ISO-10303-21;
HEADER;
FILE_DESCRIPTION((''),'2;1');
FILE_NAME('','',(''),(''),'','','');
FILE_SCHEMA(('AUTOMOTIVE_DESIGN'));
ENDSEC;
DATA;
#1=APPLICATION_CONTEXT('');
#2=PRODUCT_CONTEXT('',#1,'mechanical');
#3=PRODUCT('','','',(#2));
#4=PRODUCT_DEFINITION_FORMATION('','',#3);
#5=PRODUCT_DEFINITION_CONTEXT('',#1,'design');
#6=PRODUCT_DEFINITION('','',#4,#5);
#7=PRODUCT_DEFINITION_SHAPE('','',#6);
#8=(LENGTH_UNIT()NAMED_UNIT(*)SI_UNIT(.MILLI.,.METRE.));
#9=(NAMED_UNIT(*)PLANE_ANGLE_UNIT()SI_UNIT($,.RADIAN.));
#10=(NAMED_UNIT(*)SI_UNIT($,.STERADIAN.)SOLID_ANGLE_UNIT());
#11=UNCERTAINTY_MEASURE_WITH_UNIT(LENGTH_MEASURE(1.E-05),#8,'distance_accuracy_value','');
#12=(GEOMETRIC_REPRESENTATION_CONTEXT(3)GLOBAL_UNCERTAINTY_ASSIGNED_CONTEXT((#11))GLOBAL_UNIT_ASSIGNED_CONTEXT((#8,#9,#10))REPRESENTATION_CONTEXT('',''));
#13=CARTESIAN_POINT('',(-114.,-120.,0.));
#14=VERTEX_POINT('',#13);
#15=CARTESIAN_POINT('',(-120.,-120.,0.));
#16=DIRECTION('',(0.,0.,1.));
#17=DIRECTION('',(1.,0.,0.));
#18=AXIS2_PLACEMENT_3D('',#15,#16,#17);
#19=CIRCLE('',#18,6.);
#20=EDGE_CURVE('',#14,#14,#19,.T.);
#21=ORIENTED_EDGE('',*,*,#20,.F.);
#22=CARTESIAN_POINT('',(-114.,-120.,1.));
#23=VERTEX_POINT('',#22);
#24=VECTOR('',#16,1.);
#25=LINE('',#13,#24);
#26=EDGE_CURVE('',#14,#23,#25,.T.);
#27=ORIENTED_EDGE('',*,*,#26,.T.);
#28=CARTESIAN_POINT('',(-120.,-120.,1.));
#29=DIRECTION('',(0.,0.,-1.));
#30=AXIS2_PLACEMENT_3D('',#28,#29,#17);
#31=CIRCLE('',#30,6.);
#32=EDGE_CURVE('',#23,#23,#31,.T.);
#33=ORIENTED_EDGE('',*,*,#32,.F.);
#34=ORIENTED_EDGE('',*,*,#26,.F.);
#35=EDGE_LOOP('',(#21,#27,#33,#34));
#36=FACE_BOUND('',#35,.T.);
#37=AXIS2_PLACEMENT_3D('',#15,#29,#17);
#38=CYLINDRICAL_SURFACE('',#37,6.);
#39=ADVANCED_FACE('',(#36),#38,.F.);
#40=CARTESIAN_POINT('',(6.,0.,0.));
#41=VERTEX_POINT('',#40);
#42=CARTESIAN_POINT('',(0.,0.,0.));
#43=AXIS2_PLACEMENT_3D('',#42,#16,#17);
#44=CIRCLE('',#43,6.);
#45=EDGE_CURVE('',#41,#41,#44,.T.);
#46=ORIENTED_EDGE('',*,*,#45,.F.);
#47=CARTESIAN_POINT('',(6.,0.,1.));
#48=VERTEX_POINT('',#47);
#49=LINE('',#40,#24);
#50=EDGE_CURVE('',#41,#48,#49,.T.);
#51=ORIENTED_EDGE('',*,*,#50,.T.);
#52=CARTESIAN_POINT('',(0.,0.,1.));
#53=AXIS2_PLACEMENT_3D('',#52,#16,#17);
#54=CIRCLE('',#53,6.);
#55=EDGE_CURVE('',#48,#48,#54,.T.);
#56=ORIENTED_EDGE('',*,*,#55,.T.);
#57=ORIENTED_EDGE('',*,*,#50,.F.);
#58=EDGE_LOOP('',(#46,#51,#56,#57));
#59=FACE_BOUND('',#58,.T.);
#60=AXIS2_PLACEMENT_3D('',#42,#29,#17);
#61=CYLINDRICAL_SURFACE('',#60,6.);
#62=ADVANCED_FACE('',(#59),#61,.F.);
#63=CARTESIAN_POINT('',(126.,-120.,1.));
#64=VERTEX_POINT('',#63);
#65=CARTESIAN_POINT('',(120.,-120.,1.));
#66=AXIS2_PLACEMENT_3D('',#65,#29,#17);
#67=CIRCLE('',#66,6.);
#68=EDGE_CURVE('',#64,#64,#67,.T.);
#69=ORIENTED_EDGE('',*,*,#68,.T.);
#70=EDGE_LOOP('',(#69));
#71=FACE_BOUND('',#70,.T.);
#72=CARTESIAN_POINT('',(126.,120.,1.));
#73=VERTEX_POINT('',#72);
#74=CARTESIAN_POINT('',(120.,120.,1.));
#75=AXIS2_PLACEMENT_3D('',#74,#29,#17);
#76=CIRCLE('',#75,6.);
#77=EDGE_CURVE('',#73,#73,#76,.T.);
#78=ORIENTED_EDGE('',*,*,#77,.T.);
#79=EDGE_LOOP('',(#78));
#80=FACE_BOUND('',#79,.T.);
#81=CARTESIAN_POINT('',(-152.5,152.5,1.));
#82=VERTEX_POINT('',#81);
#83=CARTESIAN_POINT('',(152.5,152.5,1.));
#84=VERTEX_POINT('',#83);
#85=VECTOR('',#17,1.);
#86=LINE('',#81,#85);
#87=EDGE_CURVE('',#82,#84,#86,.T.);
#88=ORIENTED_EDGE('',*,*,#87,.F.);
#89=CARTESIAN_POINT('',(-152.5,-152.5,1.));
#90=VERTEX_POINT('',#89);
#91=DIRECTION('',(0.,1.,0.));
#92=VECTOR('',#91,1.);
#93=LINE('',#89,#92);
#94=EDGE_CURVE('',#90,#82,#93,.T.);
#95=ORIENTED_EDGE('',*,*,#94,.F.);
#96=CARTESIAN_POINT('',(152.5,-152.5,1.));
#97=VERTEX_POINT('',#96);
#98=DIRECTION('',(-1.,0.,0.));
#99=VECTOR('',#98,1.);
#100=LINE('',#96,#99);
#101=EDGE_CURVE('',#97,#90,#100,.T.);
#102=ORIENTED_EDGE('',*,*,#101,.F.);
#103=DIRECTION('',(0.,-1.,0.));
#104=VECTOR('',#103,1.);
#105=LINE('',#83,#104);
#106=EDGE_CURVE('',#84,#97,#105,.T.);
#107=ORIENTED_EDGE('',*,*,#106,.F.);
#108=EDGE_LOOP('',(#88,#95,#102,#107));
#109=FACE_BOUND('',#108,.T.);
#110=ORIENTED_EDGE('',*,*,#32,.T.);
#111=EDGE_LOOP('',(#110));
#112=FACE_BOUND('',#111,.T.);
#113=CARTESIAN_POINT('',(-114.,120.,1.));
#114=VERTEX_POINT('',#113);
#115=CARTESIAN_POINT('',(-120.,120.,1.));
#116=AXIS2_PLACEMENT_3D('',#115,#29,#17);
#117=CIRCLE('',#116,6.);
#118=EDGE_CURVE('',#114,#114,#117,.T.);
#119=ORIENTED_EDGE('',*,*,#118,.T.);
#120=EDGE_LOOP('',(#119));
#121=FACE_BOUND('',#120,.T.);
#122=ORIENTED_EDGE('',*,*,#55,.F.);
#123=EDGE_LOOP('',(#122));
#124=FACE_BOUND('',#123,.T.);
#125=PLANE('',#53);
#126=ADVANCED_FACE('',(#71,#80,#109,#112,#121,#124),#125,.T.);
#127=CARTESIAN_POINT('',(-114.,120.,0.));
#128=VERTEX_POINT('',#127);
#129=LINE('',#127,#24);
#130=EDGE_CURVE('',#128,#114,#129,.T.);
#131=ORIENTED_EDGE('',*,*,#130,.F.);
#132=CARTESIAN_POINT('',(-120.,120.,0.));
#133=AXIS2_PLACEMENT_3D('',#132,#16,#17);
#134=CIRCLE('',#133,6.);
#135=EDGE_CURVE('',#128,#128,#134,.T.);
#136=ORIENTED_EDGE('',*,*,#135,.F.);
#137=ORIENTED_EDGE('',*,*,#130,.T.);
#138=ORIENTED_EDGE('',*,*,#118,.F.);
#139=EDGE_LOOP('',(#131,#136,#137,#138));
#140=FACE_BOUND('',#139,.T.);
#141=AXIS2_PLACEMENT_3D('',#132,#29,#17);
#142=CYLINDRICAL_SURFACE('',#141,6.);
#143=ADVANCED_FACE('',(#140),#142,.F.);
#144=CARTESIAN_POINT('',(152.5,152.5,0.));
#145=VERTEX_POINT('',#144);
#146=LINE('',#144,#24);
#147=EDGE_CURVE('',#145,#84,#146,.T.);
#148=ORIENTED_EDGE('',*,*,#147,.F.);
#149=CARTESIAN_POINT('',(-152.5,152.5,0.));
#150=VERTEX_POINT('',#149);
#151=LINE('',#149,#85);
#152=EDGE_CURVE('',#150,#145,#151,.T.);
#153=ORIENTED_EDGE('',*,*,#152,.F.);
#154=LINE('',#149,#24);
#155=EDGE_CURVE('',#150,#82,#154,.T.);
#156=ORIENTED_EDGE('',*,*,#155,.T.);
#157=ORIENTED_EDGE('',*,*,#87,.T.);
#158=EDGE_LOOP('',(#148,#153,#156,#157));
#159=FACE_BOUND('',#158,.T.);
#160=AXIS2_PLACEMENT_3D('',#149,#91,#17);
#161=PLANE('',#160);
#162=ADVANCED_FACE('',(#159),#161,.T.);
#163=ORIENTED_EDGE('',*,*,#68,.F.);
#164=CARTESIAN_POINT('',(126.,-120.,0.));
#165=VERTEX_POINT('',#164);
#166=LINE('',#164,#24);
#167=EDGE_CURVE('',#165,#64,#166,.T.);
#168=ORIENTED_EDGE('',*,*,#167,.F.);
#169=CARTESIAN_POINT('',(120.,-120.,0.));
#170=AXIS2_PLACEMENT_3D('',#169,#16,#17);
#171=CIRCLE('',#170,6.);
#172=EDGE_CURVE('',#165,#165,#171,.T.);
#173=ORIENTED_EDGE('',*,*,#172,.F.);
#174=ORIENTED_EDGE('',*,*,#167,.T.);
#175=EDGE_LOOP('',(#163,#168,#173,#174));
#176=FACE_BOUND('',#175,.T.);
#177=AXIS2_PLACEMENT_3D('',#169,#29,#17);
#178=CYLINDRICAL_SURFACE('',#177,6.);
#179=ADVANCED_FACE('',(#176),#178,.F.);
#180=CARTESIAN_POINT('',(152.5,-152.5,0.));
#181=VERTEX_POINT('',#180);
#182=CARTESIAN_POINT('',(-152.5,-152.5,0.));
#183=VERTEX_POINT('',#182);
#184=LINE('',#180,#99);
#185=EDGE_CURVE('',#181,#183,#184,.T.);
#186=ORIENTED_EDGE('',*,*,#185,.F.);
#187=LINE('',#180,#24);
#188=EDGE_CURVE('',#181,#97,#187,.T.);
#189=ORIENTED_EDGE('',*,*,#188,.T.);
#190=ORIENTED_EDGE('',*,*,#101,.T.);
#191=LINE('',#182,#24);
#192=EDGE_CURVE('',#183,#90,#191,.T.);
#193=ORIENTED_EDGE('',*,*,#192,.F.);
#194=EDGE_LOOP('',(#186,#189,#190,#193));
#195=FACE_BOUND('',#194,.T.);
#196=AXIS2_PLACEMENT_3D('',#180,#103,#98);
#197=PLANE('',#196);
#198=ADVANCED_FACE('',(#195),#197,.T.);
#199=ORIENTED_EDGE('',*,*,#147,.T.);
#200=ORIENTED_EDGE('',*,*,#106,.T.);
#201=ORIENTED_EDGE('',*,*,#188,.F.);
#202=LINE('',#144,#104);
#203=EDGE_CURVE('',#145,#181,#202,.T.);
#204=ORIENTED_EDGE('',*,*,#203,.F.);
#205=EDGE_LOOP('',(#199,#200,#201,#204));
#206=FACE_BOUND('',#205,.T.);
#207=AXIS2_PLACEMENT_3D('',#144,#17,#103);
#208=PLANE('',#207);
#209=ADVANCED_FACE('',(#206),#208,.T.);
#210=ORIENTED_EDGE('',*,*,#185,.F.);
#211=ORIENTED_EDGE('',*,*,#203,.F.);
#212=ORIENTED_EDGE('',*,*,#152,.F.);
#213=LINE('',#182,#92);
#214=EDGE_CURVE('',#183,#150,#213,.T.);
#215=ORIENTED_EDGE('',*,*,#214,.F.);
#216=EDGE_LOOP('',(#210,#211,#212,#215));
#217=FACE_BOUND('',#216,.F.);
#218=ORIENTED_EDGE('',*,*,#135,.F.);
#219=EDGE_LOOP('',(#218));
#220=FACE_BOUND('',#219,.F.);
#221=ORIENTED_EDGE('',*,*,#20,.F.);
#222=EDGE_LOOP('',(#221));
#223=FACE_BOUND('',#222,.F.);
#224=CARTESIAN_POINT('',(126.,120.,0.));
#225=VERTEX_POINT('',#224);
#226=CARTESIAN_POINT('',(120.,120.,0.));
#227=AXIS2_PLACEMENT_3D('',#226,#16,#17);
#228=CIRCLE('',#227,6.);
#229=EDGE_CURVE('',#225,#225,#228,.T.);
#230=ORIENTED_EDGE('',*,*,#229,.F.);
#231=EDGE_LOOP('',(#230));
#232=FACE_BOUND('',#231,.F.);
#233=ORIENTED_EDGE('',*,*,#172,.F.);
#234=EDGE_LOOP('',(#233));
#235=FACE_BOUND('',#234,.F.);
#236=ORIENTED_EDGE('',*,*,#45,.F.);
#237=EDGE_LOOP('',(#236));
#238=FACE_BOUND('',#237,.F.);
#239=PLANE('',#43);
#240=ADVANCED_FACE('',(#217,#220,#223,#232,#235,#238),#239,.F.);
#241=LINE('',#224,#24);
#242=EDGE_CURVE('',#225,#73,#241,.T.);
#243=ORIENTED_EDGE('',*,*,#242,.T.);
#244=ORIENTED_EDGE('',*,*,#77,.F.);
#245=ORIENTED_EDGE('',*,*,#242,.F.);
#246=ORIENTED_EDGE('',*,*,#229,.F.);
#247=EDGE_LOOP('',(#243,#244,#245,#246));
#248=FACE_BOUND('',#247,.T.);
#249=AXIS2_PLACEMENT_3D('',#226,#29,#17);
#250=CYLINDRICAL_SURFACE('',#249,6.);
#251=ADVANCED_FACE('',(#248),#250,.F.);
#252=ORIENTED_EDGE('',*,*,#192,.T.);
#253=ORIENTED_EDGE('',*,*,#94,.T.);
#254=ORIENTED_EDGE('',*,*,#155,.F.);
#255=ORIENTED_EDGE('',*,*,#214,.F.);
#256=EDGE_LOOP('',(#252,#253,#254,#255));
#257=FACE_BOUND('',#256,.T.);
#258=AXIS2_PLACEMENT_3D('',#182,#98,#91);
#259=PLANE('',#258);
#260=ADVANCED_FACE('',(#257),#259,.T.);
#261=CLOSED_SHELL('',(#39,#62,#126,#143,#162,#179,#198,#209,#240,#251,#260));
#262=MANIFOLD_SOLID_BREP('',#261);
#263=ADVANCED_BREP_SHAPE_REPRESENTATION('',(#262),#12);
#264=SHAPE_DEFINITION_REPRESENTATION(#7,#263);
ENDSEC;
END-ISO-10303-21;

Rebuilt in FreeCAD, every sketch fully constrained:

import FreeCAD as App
import Part
import Sketcher

doc = App.newDocument("Part")
params = doc.addObject("Spreadsheet::Sheet", "Params")
for row, (alias, value) in enumerate([
    ("sketch1_diameter", "12 mm"),
    ("sketch1_width", "305 mm"),
    ("pad1_length", "1 mm"),
], start=1):
    params.set(f"A{row}", alias)
    params.set(f"B{row}", "=" + value)
    params.setAlias(f"B{row}", alias)

body = doc.addObject("PartDesign::Body", "Body")

# Sketch on XY plane
sketch1 = body.newObject("Sketcher::SketchObject", "Sketch")
sketch1.AttachmentSupport = (doc.getObject("XY_Plane"), [""])
sketch1.MapMode = "FlatFace"
sketch1.addGeometry(Part.LineSegment(App.Vector(-152, -152, 0), App.Vector(152, -152, 0)), False)
sketch1.addGeometry(Part.LineSegment(App.Vector(152, -152, 0), App.Vector(152, 152, 0)), False)
sketch1.addGeometry(Part.LineSegment(App.Vector(152, 152, 0), App.Vector(-152, 152, 0)), False)
sketch1.addGeometry(Part.LineSegment(App.Vector(-152, 152, 0), App.Vector(-152, -152, 0)), False)
sketch1.addGeometry(Part.Circle(App.Vector(120, -120, 0), App.Vector(0, 0, 1), 6), False)
sketch1.addGeometry(Part.Circle(App.Vector(120, 120, 0), App.Vector(0, 0, 1), 6), False)
sketch1.addGeometry(Part.Circle(App.Vector(-120, 120, 0), App.Vector(0, 0, 1), 6), False)
sketch1.addGeometry(Part.Circle(App.Vector(-120, -120, 0), App.Vector(0, 0, 1), 6), False)
sketch1.addGeometry(Part.Circle(App.Vector(0, 0, 0), App.Vector(0, 0, 1), 6), False)
sketch1.addConstraint(Sketcher.Constraint("Coincident", 0, 2, 1, 1))
sketch1.addConstraint(Sketcher.Constraint("Coincident", 1, 2, 2, 1))
sketch1.addConstraint(Sketcher.Constraint("Coincident", 2, 2, 3, 1))
sketch1.addConstraint(Sketcher.Constraint("Coincident", 3, 2, 0, 1))
sketch1.addConstraint(Sketcher.Constraint("Horizontal", 0))
sketch1.addConstraint(Sketcher.Constraint("Vertical", 1))
sketch1.addConstraint(Sketcher.Constraint("Horizontal", 2))
sketch1.addConstraint(Sketcher.Constraint("Vertical", 3))
sketch1.addConstraint(Sketcher.Constraint("Coincident", 8, 3, -1, 1))
sketch1.addConstraint(Sketcher.Constraint("Equal", 4, 5))
sketch1.addConstraint(Sketcher.Constraint("Equal", 5, 6))
sketch1.addConstraint(Sketcher.Constraint("Equal", 6, 7))
sketch1.addConstraint(Sketcher.Constraint("Equal", 7, 8))
sketch1.addConstraint(Sketcher.Constraint("Symmetric", 4, 3, 6, 3, -1, 1))
sketch1.addConstraint(Sketcher.Constraint("Symmetric", 5, 3, 7, 3, -1, 1))
sketch1.addConstraint(Sketcher.Constraint("Symmetric", 0, 2, 2, 2, -1, 1))
sketch1.addConstraint(Sketcher.Constraint("Symmetric", 5, 3, 6, 3, -2))
sketch1.addConstraint(Sketcher.Constraint("Equal", 2, 1))
sketch1.addConstraint(Sketcher.Constraint("Diameter", 4, 12.0))
sketch1.addConstraint(Sketcher.Constraint("DistanceX", 0, 1, 0, 2, 305.0))
sketch1.addConstraint(Sketcher.Constraint("DistanceY", 4, 3, 5, 3, 240.0))
sketch1.addConstraint(Sketcher.Constraint("DistanceX", 6, 3, 5, 3, 240.0))
sketch1.setExpression("Constraints[18]", "Params.sketch1_diameter")
sketch1.setExpression("Constraints[19]", "Params.sketch1_width")
pad1 = body.newObject("PartDesign::Pad", "Pad")
pad1.Profile = sketch1
pad1.setExpression("Length", "Params.pad1_length")

doc.recompute()
